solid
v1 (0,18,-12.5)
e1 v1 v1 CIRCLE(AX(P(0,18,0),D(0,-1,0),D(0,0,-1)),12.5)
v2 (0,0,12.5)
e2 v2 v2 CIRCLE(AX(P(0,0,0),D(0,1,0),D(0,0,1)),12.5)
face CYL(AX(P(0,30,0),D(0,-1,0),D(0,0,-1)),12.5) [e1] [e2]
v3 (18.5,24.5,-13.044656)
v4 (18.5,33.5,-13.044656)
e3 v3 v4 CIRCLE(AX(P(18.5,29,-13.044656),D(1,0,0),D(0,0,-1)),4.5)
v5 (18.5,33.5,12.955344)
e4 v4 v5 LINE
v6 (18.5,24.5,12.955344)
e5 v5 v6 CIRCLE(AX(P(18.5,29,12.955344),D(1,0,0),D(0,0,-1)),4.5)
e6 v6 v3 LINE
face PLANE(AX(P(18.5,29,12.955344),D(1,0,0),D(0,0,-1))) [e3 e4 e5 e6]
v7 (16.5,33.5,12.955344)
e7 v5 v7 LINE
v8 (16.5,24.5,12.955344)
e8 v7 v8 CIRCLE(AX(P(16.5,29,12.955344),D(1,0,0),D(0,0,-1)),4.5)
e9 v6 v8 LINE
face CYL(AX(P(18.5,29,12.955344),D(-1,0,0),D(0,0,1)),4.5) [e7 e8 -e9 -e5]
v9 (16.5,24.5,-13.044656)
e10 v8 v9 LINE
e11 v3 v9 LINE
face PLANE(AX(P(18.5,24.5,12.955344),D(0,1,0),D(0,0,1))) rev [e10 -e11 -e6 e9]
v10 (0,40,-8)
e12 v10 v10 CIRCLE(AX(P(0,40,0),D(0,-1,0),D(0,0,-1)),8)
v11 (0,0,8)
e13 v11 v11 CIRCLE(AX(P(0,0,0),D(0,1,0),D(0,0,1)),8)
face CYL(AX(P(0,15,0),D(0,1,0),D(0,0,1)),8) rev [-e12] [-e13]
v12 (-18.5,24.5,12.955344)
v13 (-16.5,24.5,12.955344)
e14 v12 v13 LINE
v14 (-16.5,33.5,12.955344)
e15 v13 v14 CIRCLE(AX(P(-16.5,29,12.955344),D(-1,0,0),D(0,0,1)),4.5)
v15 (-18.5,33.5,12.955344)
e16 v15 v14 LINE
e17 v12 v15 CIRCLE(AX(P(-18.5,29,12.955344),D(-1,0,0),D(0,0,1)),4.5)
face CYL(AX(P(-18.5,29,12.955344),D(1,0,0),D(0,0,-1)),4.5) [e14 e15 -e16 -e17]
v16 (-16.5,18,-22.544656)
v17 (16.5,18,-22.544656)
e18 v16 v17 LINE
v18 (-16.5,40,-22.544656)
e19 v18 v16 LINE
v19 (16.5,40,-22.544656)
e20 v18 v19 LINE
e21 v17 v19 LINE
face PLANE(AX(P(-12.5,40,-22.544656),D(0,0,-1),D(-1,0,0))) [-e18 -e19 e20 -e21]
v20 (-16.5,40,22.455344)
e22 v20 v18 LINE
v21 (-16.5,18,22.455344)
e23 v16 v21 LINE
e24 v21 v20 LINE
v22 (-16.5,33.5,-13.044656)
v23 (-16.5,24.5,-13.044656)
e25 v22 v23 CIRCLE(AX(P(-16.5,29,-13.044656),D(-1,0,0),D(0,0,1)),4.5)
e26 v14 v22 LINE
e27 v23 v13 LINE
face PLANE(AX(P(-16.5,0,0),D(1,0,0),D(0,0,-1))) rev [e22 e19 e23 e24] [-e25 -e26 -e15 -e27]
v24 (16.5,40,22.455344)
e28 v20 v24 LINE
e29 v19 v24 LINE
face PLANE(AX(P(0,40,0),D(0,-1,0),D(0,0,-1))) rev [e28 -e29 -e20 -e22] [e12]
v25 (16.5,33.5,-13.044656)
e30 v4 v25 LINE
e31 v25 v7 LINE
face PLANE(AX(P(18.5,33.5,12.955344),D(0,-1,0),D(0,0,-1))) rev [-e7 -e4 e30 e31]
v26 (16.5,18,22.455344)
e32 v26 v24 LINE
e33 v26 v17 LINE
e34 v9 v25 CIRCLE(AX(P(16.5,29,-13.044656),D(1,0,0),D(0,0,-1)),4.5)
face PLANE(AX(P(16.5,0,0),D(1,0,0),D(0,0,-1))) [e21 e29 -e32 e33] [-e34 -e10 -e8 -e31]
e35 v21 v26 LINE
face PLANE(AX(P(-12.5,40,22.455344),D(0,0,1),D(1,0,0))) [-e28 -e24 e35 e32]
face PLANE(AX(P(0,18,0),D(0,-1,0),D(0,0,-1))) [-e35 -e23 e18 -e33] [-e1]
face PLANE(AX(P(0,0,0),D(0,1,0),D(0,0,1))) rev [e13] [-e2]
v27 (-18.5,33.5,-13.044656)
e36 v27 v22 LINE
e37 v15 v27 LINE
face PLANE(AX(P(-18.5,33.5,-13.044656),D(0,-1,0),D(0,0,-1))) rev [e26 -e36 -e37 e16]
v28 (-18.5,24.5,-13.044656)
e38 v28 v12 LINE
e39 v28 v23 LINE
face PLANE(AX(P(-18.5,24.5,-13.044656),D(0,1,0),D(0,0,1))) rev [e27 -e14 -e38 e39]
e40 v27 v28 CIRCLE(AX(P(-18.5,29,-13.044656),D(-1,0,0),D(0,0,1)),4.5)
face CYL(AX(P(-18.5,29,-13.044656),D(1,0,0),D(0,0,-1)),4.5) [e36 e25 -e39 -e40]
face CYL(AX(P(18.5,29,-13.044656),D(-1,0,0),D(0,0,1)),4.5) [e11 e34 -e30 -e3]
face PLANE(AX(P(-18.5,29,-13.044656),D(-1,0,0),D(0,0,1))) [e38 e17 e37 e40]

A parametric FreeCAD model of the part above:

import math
import FreeCAD as App
import Part
import Sketcher


def add_polygon(sketch, points):
    """Adds a closed chain of lines whose ends are joined by coincident constraints."""
    first, n = sketch.GeometryCount, len(points)
    for a, b in zip(points, points[1:] + points[:1]):
        sketch.addGeometry(Part.LineSegment(App.Vector(*a, 0), App.Vector(*b, 0)), False)
    for i in range(n):
        sketch.addConstraint(Sketcher.Constraint("Coincident", first + i, 2, first + (i + 1) % n, 1))

doc = App.newDocument("Part")
body = doc.addObject("PartDesign::Body", "Body")

# Sketch on XZ plane
sketch1 = doc.addObject("Sketcher::SketchObject", "Sketch")
body.addObject(sketch1)
sketch1.AttachmentSupport = (doc.XZ_Plane, [""])
sketch1.MapMode = "FlatFace"
sketch1.addGeometry(Part.Circle(App.Vector(0, 0, 0), App.Vector(0, 0, 1), 12), False)
sketch1.addConstraint(Sketcher.Constraint("Coincident", 0, 3, -1, 1))
sketch1.addConstraint(Sketcher.Constraint("Diameter", 0, 25.0))
pad1 = doc.addObject("PartDesign::Pad", "Pad")
body.addObject(pad1)
pad1.Profile = sketch1
pad1.Length = 30
pad1.Reversed = True

# Sketch on XZ plane
sketch2 = doc.addObject("Sketcher::SketchObject", "Sketch001")
body.addObject(sketch2)
sketch2.AttachmentSupport = (doc.XZ_Plane, [""])
sketch2.MapMode = "FlatFace"
sketch2.AttachmentOffset = App.Placement(App.Vector(0, 0, -30), App.Rotation())
sketch2.addGeometry(Part.Circle(App.Vector(0, 0, 0), App.Vector(0, 0, 1), 8), False)
sketch2.addConstraint(Sketcher.Constraint("Coincident", 0, 3, -1, 1))
sketch2.addConstraint(Sketcher.Constraint("Diameter", 0, 16.0))
pocket1 = doc.addObject("PartDesign::Pocket", "Pocket")
body.addObject(pocket1)
pocket1.Profile = sketch2
pocket1.Length = 15
pocket1.Reversed = True

# Sketch on XZ plane
sketch3 = doc.addObject("Sketcher::SketchObject", "Sketch002")
body.addObject(sketch3)
sketch3.AttachmentSupport = (doc.XZ_Plane, [""])
sketch3.MapMode = "FlatFace"
add_polygon(sketch3, [(-1.5, 2.5), (-1.5, -2.5), (1.5, -2.5), (1.5, 2.5)])  # lines 0-3
sketch3.addConstraint(Sketcher.Constraint("Vertical", 0))
sketch3.addConstraint(Sketcher.Constraint("Horizontal", 1))
sketch3.addConstraint(Sketcher.Constraint("Vertical", 2))
sketch3.addConstraint(Sketcher.Constraint("Horizontal", 3))
sketch3.addConstraint(Sketcher.Constraint("Symmetric", 0, 2, 2, 2, -1, 1))
sketch3.addConstraint(Sketcher.Constraint("DistanceX", 1, 1, 1, 2, 3.0))
sketch3.addConstraint(Sketcher.Constraint("DistanceY", 0, 2, 0, 1, 5.0))
pocket2 = doc.addObject("PartDesign::Pocket", "Pocket001")
body.addObject(pocket2)
pocket2.Profile = sketch3
pocket2.Length = 6.5

# Sketch on XZ plane
sketch4 = doc.addObject("Sketcher::SketchObject", "Sketch003")
body.addObject(sketch4)
sketch4.AttachmentSupport = (doc.XZ_Plane, [""])
sketch4.MapMode = "FlatFace"
sketch4.AttachmentOffset = App.Placement(App.Vector(0, 0, -30), App.Rotation())
sketch4.addGeometry(Part.Circle(App.Vector(0, 0, 0), App.Vector(0, 0, 1), 8), False)
sketch4.addConstraint(Sketcher.Constraint("Coincident", 0, 3, -1, 1))
sketch4.addConstraint(Sketcher.Constraint("Diameter", 0, 16.0))
pocket3 = doc.addObject("PartDesign::Pocket", "Pocket002")
body.addObject(pocket3)
pocket3.Profile = sketch4
pocket3.Type = "ThroughAll"
pocket3.Reversed = True

# Sketch on XZ plane
sketch5 = doc.addObject("Sketcher::SketchObject", "Sketch004")
body.addObject(sketch5)
sketch5.AttachmentSupport = (doc.XZ_Plane, [""])
sketch5.MapMode = "FlatFace"
sketch5.AttachmentOffset = App.Placement(App.Vector(0, 0, -30), App.Rotation())
add_polygon(sketch5, [(-12, -12), (-12, 12), (12, 12), (12, -12)])  # lines 0-3
sketch5.addConstraint(Sketcher.Constraint("Vertical", 0))
sketch5.addConstraint(Sketcher.Constraint("Horizontal", 1))
sketch5.addConstraint(Sketcher.Constraint("Vertical", 2))
sketch5.addConstraint(Sketcher.Constraint("Horizontal", 3))
sketch5.addConstraint(Sketcher.Constraint("Symmetric", 0, 2, 2, 2, -1, 1))
sketch5.addConstraint(Sketcher.Constraint("Equal", 3, 0))
sketch5.addConstraint(Sketcher.Constraint("DistanceX", 1, 1, 1, 2, 25.0))
pad2 = doc.addObject("PartDesign::Pad", "Pad001")
body.addObject(pad2)
pad2.Profile = sketch5
pad2.Length = 12

# Sketch on XZ plane
sketch6 = doc.addObject("Sketcher::SketchObject", "Sketch005")
body.addObject(sketch6)
sketch6.AttachmentSupport = (doc.XZ_Plane, [""])
sketch6.MapMode = "FlatFace"
sketch6.AttachmentOffset = App.Placement(App.Vector(0, 0, -30), App.Rotation())
add_polygon(sketch6, [(-12, -12), (-12, 12), (12, 12), (12, -12)])  # lines 0-3
sketch6.addConstraint(Sketcher.Constraint("Vertical", 0))
sketch6.addConstraint(Sketcher.Constraint("Horizontal", 1))
sketch6.addConstraint(Sketcher.Constraint("Vertical", 2))
sketch6.addConstraint(Sketcher.Constraint("Horizontal", 3))
sketch6.addConstraint(Sketcher.Constraint("Symmetric", 0, 2, 2, 2, -1, 1))
sketch6.addConstraint(Sketcher.Constraint("Equal", 3, 0))
sketch6.addConstraint(Sketcher.Constraint("DistanceX", 1, 1, 1, 2, 25.0))
pad3 = doc.addObject("PartDesign::Pad", "Pad002")
body.addObject(pad3)
pad3.Profile = sketch6
pad3.Length = 10
pad3.Reversed = True

# Sketch on XZ plane
sketch7 = doc.addObject("Sketcher::SketchObject", "Sketch006")
body.addObject(sketch7)
sketch7.AttachmentSupport = (doc.XZ_Plane, [""])
sketch7.MapMode = "FlatFace"
sketch7.AttachmentOffset = App.Placement(App.Vector(0, 0, -18), App.Rotation())
sketch7.addGeometry(Part.Circle(App.Vector(0, 0, 0), App.Vector(0, 0, 1), 8), False)
sketch7.addConstraint(Sketcher.Constraint("Coincident", 0, 3, -1, 1))
sketch7.addConstraint(Sketcher.Constraint("Diameter", 0, 16.0))
pocket4 = doc.addObject("PartDesign::Pocket", "Pocket003")
body.addObject(pocket4)
pocket4.Profile = sketch7
pocket4.Type = "ThroughAll"

# Sketch on YZ plane
sketch8 = doc.addObject("Sketcher::SketchObject", "Sketch007")
body.addObject(sketch8)
sketch8.AttachmentSupport = (doc.YZ_Plane, [""])
sketch8.MapMode = "FlatFace"
sketch8.AttachmentOffset = App.Placement(App.Vector(0, 0, 12.5), App.Rotation())
add_polygon(sketch8, [(40, 22), (18, 22), (18, -23), (40, -23)])  # lines 0-3
sketch8.addConstraint(Sketcher.Constraint("Horizontal", 0))
sketch8.addConstraint(Sketcher.Constraint("Vertical", 1))
sketch8.addConstraint(Sketcher.Constraint("Horizontal", 2))
sketch8.addConstraint(Sketcher.Constraint("Vertical", 3))
sketch8.addConstraint(Sketcher.Constraint("DistanceX", 0, 2, 0, 1, 22.0))
sketch8.addConstraint(Sketcher.Constraint("DistanceY", 1, 2, 1, 1, 45.0))
sketch8.addConstraint(Sketcher.Constraint("DistanceX", -1, 1, 0, 2, 18.0))
sketch8.addConstraint(Sketcher.Constraint("DistanceY", -1, 1, 0, 2, 22.455344))
pad4 = doc.addObject("PartDesign::Pad", "Pad003")
body.addObject(pad4)
pad4.Profile = sketch8
pad4.Length = 25
pad4.Reversed = True

# Sketch on YZ plane
sketch9 = doc.addObject("Sketcher::SketchObject", "Sketch008")
body.addObject(sketch9)
sketch9.AttachmentSupport = (doc.YZ_Plane, [""])
sketch9.MapMode = "FlatFace"
sketch9.AttachmentOffset = App.Placement(App.Vector(0, 0, -12.5), App.Rotation())
add_polygon(sketch9, [(40, -23), (18, -23), (18, 23), (40, 23)])  # lines 0-3
sketch9.addConstraint(Sketcher.Constraint("Horizontal", 0))
sketch9.addConstraint(Sketcher.Constraint("Vertical", 1))
sketch9.addConstraint(Sketcher.Constraint("Horizontal", 2))
sketch9.addConstraint(Sketcher.Constraint("Vertical", 3))
sketch9.addConstraint(Sketcher.Constraint("DistanceX", 0, 2, 0, 1, 22.0))
sketch9.addConstraint(Sketcher.Constraint("DistanceX", -1, 1, 0, 2, 18.0))
sketch9.addConstraint(Sketcher.Constraint("DistanceY", 1, 1, 1, 2, 45.089311))
sketch9.addConstraint(Sketcher.Constraint("DistanceY", 0, 2, -1, 1, 22.544656))
pad5 = doc.addObject("PartDesign::Pad", "Pad004")
body.addObject(pad5)
pad5.Profile = sketch9
pad5.Length = 4
pad5.Reversed = True

# Sketch on YZ plane
sketch10 = doc.addObject("Sketcher::SketchObject", "Sketch009")
body.addObject(sketch10)
sketch10.AttachmentSupport = (doc.YZ_Plane, [""])
sketch10.MapMode = "FlatFace"
sketch10.AttachmentOffset = App.Placement(App.Vector(0, 0, 12.5), App.Rotation())
add_polygon(sketch10, [(40, 23), (18, 23), (18, -23), (40, -23)])  # lines 0-3
sketch10.addConstraint(Sketcher.Constraint("Horizontal", 0))
sketch10.addConstraint(Sketcher.Constraint("Vertical", 1))
sketch10.addConstraint(Sketcher.Constraint("Horizontal", 2))
sketch10.addConstraint(Sketcher.Constraint("Vertical", 3))
sketch10.addConstraint(Sketcher.Constraint("DistanceX", 0, 2, 0, 1, 22.0))
sketch10.addConstraint(Sketcher.Constraint("DistanceX", -1, 1, 0, 2, 18.0))
sketch10.addConstraint(Sketcher.Constraint("DistanceY", 1, 2, 1, 1, 45.089311))
sketch10.addConstraint(Sketcher.Constraint("DistanceY", -1, 1, 0, 2, 22.544656))
pad6 = doc.addObject("PartDesign::Pad", "Pad005")
body.addObject(pad6)
pad6.Profile = sketch10
pad6.Length = 4

# Sketch on XZ plane
sketch11 = doc.addObject("Sketcher::SketchObject", "Sketch010")
body.addObject(sketch11)
sketch11.AttachmentSupport = (doc.XZ_Plane, [""])
sketch11.MapMode = "FlatFace"
sketch11.AttachmentOffset = App.Placement(App.Vector(0, 0, -40), App.Rotation())
add_polygon(sketch11, [(-16, -23), (-16, 22), (16, 22), (16, -23)])  # lines 0-3
sketch11.addConstraint(Sketcher.Constraint("Vertical", 0))
sketch11.addConstraint(Sketcher.Constraint("Horizontal", 1))
sketch11.addConstraint(Sketcher.Constraint("Vertical", 2))
sketch11.addConstraint(Sketcher.Constraint("Horizontal", 3))
sketch11.addConstraint(Sketcher.Constraint("DistanceX", 1, 1, 1, 2, 33.0))
sketch11.addConstraint(Sketcher.Constraint("DistanceY", 0, 1, 0, 2, 45.0))
sketch11.addConstraint(Sketcher.Constraint("DistanceX", 0, 2, -1, 1, 16.5))
sketch11.addConstraint(Sketcher.Constraint("DistanceY", -1, 1, 0, 2, 22.455344))
pad7 = doc.addObject("PartDesign::Pad", "Pad006")
body.addObject(pad7)
pad7.Profile = sketch11
pad7.Length = 22

# Sketch on XZ plane
sketch12 = doc.addObject("Sketcher::SketchObject", "Sketch011")
body.addObject(sketch12)
sketch12.AttachmentSupport = (doc.XZ_Plane, [""])
sketch12.MapMode = "FlatFace"
sketch12.AttachmentOffset = App.Placement(App.Vector(0, 0, -40), App.Rotation())
add_polygon(sketch12, [(-16.5, 22.46), (-16.5, 22.54), (-12.5, 22.54), (-12.5, 22.46)])  # lines 0-3
add_polygon(sketch12, [(12.5, 22.46), (12.5, 22.54), (16.5, 22.54), (16.5, 22.46)])  # lines 4-7
sketch12.addConstraint(Sketcher.Constraint("Vertical", 0))
sketch12.addConstraint(Sketcher.Constraint("Horizontal", 1))
sketch12.addConstraint(Sketcher.Constraint("Vertical", 2))
sketch12.addConstraint(Sketcher.Constraint("Horizontal", 3))
sketch12.addConstraint(Sketcher.Constraint("Vertical", 4))
sketch12.addConstraint(Sketcher.Constraint("Horizontal", 5))
sketch12.addConstraint(Sketcher.Constraint("Vertical", 6))
sketch12.addConstraint(Sketcher.Constraint("Horizontal", 7))
sketch12.addConstraint(Sketcher.Constraint("Symmetric", 1, 2, 4, 2, -2))
sketch12.addConstraint(Sketcher.Constraint("Symmetric", 3, 2, 6, 2, -2))
sketch12.addConstraint(Sketcher.Constraint("DistanceX", 1, 1, 1, 2, 4.0))
sketch12.addConstraint(Sketcher.Constraint("DistanceX", 1, 2, 4, 2, 25.0))
sketch12.addConstraint(Sketcher.Constraint("DistanceY", 0, 1, 0, 2, 0.089311))
sketch12.addConstraint(Sketcher.Constraint("DistanceY", -1, 1, 0, 2, 22.544656))
pocket5 = doc.addObject("PartDesign::Pocket", "Pocket004")
body.addObject(pocket5)
pocket5.Profile = sketch12
pocket5.Type = "ThroughAll"
pocket5.Reversed = True

# Sketch on YZ plane
sketch13 = doc.addObject("Sketcher::SketchObject", "Sketch012")
body.addObject(sketch13)
sketch13.AttachmentSupport = (doc.YZ_Plane, [""])
sketch13.MapMode = "FlatFace"
sketch13.AttachmentOffset = App.Placement(App.Vector(0, 0, -16.5), App.Rotation())
sketch13.addGeometry(Part.LineSegment(App.Vector(33.5, 13, 0), App.Vector(33.5, -13, 0)), False)
sketch13.addGeometry(Part.ArcOfCircle(Part.Circle(App.Vector(29, -13, 0), App.Vector(0, 0, 1), 4.5), math.radians(180), math.radians(360)), False)
sketch13.addGeometry(Part.LineSegment(App.Vector(24.5, -13, 0), App.Vector(24.5, 13, 0)), False)
sketch13.addGeometry(Part.ArcOfCircle(Part.Circle(App.Vector(29, 13, 0), App.Vector(0, 0, 1), 4.5), math.radians(0), math.radians(180)), False)
sketch13.addConstraint(Sketcher.Constraint("Tangent", 0, 2, 1, 2))
sketch13.addConstraint(Sketcher.Constraint("Tangent", 1, 1, 2, 1))
sketch13.addConstraint(Sketcher.Constraint("Tangent", 2, 2, 3, 2))
sketch13.addConstraint(Sketcher.Constraint("Tangent", 3, 1, 0, 1))
sketch13.addConstraint(Sketcher.Constraint("Vertical", 0))
sketch13.addConstraint(Sketcher.Constraint("Vertical", 2))
sketch13.addConstraint(Sketcher.Constraint("Radius", 1, 4.5))
sketch13.addConstraint(Sketcher.Constraint("DistanceY", 0, 2, 0, 1, 26.0))
sketch13.addConstraint(Sketcher.Constraint("DistanceX", -1, 1, 1, 3, 29.0))
sketch13.addConstraint(Sketcher.Constraint("DistanceY", 1, 3, -1, 1, 13.044656))
pad8 = doc.addObject("PartDesign::Pad", "Pad007")
body.addObject(pad8)
pad8.Profile = sketch13
pad8.Length = 2
pad8.Reversed = True

# Sketch on YZ plane
sketch14 = doc.addObject("Sketcher::SketchObject", "Sketch013")
body.addObject(sketch14)
sketch14.AttachmentSupport = (doc.YZ_Plane, [""])
sketch14.MapMode = "FlatFace"
sketch14.AttachmentOffset = App.Placement(App.Vector(0, 0, 18.5), App.Rotation())
sketch14.addGeometry(Part.LineSegment(App.Vector(24.5, 13, 0), App.Vector(24.5, -13, 0)), False)
sketch14.addGeometry(Part.ArcOfCircle(Part.Circle(App.Vector(29, -13, 0), App.Vector(0, 0, 1), 4.5), math.radians(180), math.radians(360)), False)
sketch14.addGeometry(Part.LineSegment(App.Vector(33.5, -13, 0), App.Vector(33.5, 13, 0)), False)
sketch14.addGeometry(Part.ArcOfCircle(Part.Circle(App.Vector(29, 13, 0), App.Vector(0, 0, 1), 4.5), math.radians(0), math.radians(180)), False)
sketch14.addConstraint(Sketcher.Constraint("Tangent", 0, 2, 1, 1))
sketch14.addConstraint(Sketcher.Constraint("Tangent", 1, 2, 2, 1))
sketch14.addConstraint(Sketcher.Constraint("Tangent", 2, 2, 3, 1))
sketch14.addConstraint(Sketcher.Constraint("Tangent", 3, 2, 0, 1))
sketch14.addConstraint(Sketcher.Constraint("Vertical", 0))
sketch14.addConstraint(Sketcher.Constraint("Vertical", 2))
sketch14.addConstraint(Sketcher.Constraint("Radius", 1, 4.5))
sketch14.addConstraint(Sketcher.Constraint("DistanceY", 0, 2, 0, 1, 26.0))
sketch14.addConstraint(Sketcher.Constraint("DistanceX", -1, 1, 1, 3, 29.0))
sketch14.addConstraint(Sketcher.Constraint("DistanceY", 1, 3, -1, 1, 13.044656))
pad9 = doc.addObject("PartDesign::Pad", "Pad008")
body.addObject(pad9)
pad9.Profile = sketch14
pad9.Length = 2
pad9.Reversed = True

# Sketch on XZ plane
sketch15 = doc.addObject("Sketcher::SketchObject", "Sketch014")
body.addObject(sketch15)
sketch15.AttachmentSupport = (doc.XZ_Plane, [""])
sketch15.MapMode = "FlatFace"
sketch15.AttachmentOffset = App.Placement(App.Vector(0, 0, -18), App.Rotation())
sketch15.addGeometry(Part.Circle(App.Vector(0, 0, 0), App.Vector(0, 0, 1), 8), False)
sketch15.addConstraint(Sketcher.Constraint("Coincident", 0, 3, -1, 1))
sketch15.addConstraint(Sketcher.Constraint("Diameter", 0, 16.0))
pocket6 = doc.addObject("PartDesign::Pocket", "Pocket005")
body.addObject(pocket6)
pocket6.Profile = sketch15
pocket6.Type = "ThroughAll"

doc.recompute()
